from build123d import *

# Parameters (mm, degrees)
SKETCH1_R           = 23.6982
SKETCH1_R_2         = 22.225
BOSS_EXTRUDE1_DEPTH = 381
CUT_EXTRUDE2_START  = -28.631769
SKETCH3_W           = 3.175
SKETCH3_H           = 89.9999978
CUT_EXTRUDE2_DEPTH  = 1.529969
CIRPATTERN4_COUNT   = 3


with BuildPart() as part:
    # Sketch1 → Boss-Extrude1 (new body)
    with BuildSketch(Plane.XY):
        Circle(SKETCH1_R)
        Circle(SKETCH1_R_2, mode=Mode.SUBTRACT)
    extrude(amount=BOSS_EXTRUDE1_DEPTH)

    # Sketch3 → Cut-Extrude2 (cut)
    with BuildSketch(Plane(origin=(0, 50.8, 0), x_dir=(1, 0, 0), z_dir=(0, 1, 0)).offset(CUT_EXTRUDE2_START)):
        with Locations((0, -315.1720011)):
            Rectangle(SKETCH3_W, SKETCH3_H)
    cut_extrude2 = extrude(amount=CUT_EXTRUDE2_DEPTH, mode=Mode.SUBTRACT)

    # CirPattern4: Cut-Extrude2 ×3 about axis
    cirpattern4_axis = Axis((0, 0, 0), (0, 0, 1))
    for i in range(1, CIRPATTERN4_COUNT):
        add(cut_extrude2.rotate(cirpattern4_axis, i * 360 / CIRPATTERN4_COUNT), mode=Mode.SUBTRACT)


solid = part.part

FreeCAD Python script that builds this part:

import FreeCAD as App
import Part
import Sketcher

V = App.Vector
Q = App.Units.Quantity


def add_polygon(sketch, points):
    """Adds a closed chain of lines whose ends are joined by coincident constraints."""
    first, n = sketch.GeometryCount, len(points)
    for a, b in zip(points, points[1:] + points[:1]):
        sketch.addGeometry(Part.LineSegment(App.Vector(*a, 0), App.Vector(*b, 0)), False)
    for i in range(n):
        sketch.addConstraint(Sketcher.Constraint("Coincident", first + i, 2, first + (i + 1) % n, 1))

doc = App.newDocument("Part")
params = doc.addObject("Spreadsheet::Sheet", "Params")
for row, (alias, value) in enumerate([
    ("sketch1_diameter", "1.75 in"),
    ("sketch1_diameter2", "1.866 in"),
    ("pad1_length", "15 in"),
    ("sketch2_width", "0.125 in"),
    ("pocket1_length", "1.529969 mm"),
], start=1):
    params.set(f"A{row}", alias)
    params.set(f"B{row}", "=" + value)
    params.setAlias(f"B{row}", alias)

body = doc.addObject("PartDesign::Body", "Body")

# Sketch on XY plane
sketch1 = doc.addObject("Sketcher::SketchObject", "Sketch")
body.addObject(sketch1)
sketch1.AttachmentSupport = (doc.XY_Plane, [""])
sketch1.MapMode = "FlatFace"
sketch1.addGeometry(Part.Circle(V(0, 0, 0), V(0, 0, 1), 24), False)
sketch1.addGeometry(Part.Circle(V(0, 0, 0), V(0, 0, 1), 22), False)
sketch1.addConstraint(Sketcher.Constraint("Coincident", 0, 3, -1, 1))
sketch1.addConstraint(Sketcher.Constraint("Coincident", 1, 3, -1, 1))
sketch1.addConstraint(Sketcher.Constraint("Diameter", 1, Q("1.75 in")))
sketch1.addConstraint(Sketcher.Constraint("Diameter", 0, Q("1.866 in")))
sketch1.setExpression("Constraints[2]", "Params.sketch1_diameter")
sketch1.setExpression("Constraints[3]", "Params.sketch1_diameter2")
pad1 = doc.addObject("PartDesign::Pad", "Pad")
body.addObject(pad1)
pad1.Profile = sketch1
pad1.setExpression("Length", "Params.pad1_length")

# Sketch on XZ plane
sketch2 = doc.addObject("Sketcher::SketchObject", "Sketch001")
body.addObject(sketch2)
sketch2.AttachmentSupport = (doc.XZ_Plane, [""])
sketch2.MapMode = "FlatFace"
sketch2.AttachmentOffset = App.Placement(V(0, 0, -22.168231), App.Rotation())
add_polygon(sketch2, [(-1.6, 270.2), (-1.6, 360.2), (1.6, 360.2), (1.6, 270.2)])  # lines 0-3
sketch2.addConstraint(Sketcher.Constraint("Vertical", 0))
sketch2.addConstraint(Sketcher.Constraint("Horizontal", 1))
sketch2.addConstraint(Sketcher.Constraint("Vertical", 2))
sketch2.addConstraint(Sketcher.Constraint("Horizontal", 3))
sketch2.addConstraint(Sketcher.Constraint("DistanceX", 1, 1, 1, 2, Q("0.125 in")))
sketch2.addConstraint(Sketcher.Constraint("DistanceY", -1, 1, 0, 2, Q("14.18 in")))
sketch2.addConstraint(Sketcher.Constraint("DistanceX", 0, 2, -1, 1, Q("0.0625 in")))
sketch2.addConstraint(Sketcher.Constraint("DistanceY", 0, 1, 0, 2, 89.999998))
sketch2.setExpression("Constraints[8]", "Params.sketch2_width")
pocket1 = doc.addObject("PartDesign::Pocket", "Pocket")
body.addObject(pocket1)
pocket1.Profile = sketch2
pocket1.setExpression("Length", "Params.pocket1_length")
doc.recompute()

polarpattern = doc.addObject("PartDesign::PolarPattern", "PolarPattern")
body.addObject(polarpattern)
polarpattern.Originals = [pocket1]
polarpattern.Axis = (doc.Z_Axis, [""])
polarpattern.Angle = 360
polarpattern.Occurrences = 3
body.Tip = polarpattern

doc.recompute()
